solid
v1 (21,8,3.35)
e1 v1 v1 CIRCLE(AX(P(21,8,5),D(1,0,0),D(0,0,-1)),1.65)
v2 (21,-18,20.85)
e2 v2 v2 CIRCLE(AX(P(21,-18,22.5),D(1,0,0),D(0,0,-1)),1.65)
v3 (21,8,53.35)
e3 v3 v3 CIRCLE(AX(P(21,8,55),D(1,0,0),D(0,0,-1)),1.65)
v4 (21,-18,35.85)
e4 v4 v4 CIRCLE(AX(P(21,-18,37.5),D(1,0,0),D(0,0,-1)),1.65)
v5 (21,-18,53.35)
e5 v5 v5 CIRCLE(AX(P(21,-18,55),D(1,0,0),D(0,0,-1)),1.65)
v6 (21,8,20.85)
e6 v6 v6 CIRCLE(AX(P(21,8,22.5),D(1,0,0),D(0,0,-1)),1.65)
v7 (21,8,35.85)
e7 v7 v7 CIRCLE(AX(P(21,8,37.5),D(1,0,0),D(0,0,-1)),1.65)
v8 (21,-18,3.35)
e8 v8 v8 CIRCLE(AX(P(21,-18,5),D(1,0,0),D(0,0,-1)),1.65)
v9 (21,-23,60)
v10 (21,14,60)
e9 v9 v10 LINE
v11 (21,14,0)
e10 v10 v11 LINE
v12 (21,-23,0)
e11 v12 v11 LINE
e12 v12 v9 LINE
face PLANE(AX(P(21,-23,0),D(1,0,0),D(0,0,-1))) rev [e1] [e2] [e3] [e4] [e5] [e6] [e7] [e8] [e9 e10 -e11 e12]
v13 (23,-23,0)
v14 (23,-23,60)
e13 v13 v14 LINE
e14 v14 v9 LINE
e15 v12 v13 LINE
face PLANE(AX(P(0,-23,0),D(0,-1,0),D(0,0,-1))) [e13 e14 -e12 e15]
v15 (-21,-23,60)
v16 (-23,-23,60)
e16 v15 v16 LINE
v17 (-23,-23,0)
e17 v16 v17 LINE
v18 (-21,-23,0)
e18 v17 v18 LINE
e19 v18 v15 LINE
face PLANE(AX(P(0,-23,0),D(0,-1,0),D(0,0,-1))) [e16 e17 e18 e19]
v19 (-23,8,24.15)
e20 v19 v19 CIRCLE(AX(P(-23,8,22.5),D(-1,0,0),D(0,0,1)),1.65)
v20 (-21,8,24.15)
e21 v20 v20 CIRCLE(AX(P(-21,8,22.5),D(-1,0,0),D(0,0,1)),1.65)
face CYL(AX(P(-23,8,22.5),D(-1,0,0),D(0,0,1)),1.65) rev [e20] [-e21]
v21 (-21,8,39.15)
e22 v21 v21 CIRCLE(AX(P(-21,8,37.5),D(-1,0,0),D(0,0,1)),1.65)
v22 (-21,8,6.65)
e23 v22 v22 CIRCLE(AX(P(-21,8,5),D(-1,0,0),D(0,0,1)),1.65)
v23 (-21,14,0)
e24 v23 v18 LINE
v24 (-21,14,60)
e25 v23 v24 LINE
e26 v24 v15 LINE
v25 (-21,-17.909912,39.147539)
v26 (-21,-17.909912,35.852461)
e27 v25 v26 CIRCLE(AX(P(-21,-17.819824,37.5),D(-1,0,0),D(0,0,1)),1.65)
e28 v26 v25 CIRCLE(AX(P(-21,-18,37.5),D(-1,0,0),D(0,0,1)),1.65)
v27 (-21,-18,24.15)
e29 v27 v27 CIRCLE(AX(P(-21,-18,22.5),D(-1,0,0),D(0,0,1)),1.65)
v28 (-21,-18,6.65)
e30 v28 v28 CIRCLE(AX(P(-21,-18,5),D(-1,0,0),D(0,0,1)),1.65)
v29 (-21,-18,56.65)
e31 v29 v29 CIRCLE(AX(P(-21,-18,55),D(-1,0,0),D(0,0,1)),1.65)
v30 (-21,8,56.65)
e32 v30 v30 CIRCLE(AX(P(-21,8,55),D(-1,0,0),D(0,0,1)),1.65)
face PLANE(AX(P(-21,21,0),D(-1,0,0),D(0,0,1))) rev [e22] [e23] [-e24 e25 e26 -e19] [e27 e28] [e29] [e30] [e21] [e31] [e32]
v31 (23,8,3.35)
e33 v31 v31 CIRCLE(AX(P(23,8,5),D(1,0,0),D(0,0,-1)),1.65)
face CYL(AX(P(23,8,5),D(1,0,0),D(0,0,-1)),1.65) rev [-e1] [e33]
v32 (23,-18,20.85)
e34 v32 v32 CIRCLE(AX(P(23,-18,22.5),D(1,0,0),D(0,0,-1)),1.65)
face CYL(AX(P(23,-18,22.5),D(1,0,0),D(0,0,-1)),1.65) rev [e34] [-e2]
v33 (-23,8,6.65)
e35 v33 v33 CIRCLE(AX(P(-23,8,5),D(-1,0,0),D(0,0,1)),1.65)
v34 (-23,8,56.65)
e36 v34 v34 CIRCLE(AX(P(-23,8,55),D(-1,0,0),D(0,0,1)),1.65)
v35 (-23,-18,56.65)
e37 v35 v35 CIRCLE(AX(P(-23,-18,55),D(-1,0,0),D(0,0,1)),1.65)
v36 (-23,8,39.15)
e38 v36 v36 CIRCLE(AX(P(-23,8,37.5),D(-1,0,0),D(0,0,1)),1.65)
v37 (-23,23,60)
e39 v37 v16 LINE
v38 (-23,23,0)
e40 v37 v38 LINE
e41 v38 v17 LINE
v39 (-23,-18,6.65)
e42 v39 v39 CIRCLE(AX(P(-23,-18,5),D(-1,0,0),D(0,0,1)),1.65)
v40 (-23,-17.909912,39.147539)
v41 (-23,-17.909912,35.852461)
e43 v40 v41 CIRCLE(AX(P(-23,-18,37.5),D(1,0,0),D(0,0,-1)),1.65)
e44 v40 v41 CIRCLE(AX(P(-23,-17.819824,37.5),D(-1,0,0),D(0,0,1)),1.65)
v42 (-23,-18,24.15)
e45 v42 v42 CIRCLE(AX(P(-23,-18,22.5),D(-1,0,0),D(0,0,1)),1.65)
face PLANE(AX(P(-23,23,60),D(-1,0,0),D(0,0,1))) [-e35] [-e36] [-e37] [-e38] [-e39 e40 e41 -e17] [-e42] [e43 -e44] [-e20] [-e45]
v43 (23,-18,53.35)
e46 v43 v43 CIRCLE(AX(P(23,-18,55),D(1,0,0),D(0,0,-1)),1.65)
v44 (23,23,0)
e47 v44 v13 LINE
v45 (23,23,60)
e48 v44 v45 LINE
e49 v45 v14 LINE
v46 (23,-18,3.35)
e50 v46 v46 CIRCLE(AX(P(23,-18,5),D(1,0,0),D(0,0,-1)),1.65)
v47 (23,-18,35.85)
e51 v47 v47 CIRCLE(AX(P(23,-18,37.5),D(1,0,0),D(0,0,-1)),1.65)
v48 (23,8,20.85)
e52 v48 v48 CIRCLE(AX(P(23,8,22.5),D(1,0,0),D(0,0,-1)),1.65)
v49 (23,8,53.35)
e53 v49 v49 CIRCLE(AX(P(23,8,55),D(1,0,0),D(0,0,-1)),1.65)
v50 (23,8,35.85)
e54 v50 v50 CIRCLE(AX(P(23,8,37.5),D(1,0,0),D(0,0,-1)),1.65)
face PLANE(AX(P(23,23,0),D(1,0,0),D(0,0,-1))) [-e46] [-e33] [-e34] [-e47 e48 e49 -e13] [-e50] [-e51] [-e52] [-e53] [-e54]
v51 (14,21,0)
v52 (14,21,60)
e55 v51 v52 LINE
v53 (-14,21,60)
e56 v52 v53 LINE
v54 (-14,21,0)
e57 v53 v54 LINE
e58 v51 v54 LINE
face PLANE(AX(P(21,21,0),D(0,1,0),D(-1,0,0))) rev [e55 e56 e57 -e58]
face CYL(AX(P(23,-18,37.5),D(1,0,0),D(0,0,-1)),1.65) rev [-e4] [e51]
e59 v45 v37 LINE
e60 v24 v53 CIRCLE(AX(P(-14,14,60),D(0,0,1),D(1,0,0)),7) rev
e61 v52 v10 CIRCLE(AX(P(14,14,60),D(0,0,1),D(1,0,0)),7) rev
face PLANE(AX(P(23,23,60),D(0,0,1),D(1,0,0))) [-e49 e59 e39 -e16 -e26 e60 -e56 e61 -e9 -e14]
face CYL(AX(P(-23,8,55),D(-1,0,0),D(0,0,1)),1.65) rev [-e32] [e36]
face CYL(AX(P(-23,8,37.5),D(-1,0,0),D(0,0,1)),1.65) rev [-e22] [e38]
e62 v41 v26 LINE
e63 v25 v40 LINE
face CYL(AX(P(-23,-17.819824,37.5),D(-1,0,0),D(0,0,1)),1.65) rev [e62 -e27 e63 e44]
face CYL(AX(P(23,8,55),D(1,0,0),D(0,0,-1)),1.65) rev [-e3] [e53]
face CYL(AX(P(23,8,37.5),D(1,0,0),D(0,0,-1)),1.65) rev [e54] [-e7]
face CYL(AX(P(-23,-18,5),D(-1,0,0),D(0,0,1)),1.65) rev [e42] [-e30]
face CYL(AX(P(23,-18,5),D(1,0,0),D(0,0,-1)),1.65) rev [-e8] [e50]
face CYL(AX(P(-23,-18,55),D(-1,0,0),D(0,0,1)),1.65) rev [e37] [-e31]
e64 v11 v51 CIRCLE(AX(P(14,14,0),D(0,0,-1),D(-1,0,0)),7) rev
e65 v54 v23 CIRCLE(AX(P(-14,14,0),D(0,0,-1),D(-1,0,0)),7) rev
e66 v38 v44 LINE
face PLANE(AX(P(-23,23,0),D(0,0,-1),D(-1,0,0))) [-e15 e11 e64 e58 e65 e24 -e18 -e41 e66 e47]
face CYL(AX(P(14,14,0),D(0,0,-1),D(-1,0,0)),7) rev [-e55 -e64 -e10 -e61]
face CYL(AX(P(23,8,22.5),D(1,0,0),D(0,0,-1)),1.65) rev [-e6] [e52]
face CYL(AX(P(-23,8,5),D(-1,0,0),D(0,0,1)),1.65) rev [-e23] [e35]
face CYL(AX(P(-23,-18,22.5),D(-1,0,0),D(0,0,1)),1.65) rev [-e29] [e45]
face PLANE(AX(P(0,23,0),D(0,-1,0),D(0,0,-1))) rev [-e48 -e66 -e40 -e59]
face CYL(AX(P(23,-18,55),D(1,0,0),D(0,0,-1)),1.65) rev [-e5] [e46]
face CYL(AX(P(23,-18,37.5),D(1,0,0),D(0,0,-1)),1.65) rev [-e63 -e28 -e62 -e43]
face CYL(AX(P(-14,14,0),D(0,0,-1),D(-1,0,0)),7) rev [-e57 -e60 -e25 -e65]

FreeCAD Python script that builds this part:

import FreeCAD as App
import Part
import Sketcher
Q = App.Units.Quantity


def edges_at(feature, points):
    """Names of the edges that pass closest to the given points."""
    edges = feature.Shape.Edges
    near = lambda p: min(range(len(edges)), key=lambda i: edges[i].distToShape(Part.Vertex(*p))[0])
    return sorted({f"Edge{near(p) + 1}" for p in points})

doc = App.newDocument("Part")
body = doc.addObject("PartDesign::Body", "Body")

sketch1 = body.newObject("Sketcher::SketchObject", "Sketch")
sketch1.AttachmentSupport = (doc.getObject("XZ_Plane"), [""])
sketch1.MapMode = "FlatFace"
sketch1.AttachmentOffset = App.Placement(App.Vector(0, 0, 23), App.Rotation())
sketch1.addGeometry(Part.LineSegment(App.Vector(-23, 60, 0), App.Vector(-23, 0, 0)), False)
sketch1.addGeometry(Part.LineSegment(App.Vector(-23, 0, 0), App.Vector(23, 0, 0)), False)
sketch1.addGeometry(Part.LineSegment(App.Vector(23, 0, 0), App.Vector(23, 60, 0)), False)
sketch1.addGeometry(Part.LineSegment(App.Vector(23, 60, 0), App.Vector(-23, 60, 0)), False)
sketch1.addConstraint(Sketcher.Constraint("Coincident", 0, 2, 1, 1))
sketch1.addConstraint(Sketcher.Constraint("Coincident", 1, 2, 2, 1))
sketch1.addConstraint(Sketcher.Constraint("Coincident", 2, 2, 3, 1))
sketch1.addConstraint(Sketcher.Constraint("Coincident", 3, 2, 0, 1))
sketch1.addConstraint(Sketcher.Constraint("Vertical", 0))
sketch1.addConstraint(Sketcher.Constraint("Horizontal", 1))
sketch1.addConstraint(Sketcher.Constraint("Vertical", 2))
sketch1.addConstraint(Sketcher.Constraint("Horizontal", 3))
sketch1.addConstraint(Sketcher.Constraint("Symmetric", 0, 2, 1, 2, -1, 1))
sketch1.addConstraint(Sketcher.Constraint("DistanceX", 1, 1, 1, 2, Q("46 mm")))
sketch1.addConstraint(Sketcher.Constraint("DistanceY", 0, 2, 0, 1, Q("60 mm")))
pad1 = body.newObject("PartDesign::Pad", "Pad")
pad1.Profile = sketch1
pad1.Length = 46
pad1.Reversed = True

sketch2 = body.newObject("Sketcher::SketchObject", "Sketch001")
sketch2.AttachmentSupport = (doc.getObject("XY_Plane"), [""])
sketch2.MapMode = "FlatFace"
sketch2.AttachmentOffset = App.Placement(App.Vector(0, 0, 60), App.Rotation())
sketch2.addGeometry(Part.LineSegment(App.Vector(-21, 21, 0), App.Vector(-21, -23, 0)), False)
sketch2.addGeometry(Part.LineSegment(App.Vector(-21, -23, 0), App.Vector(21, -23, 0)), False)
sketch2.addGeometry(Part.LineSegment(App.Vector(21, -23, 0), App.Vector(21, 21, 0)), False)
sketch2.addGeometry(Part.LineSegment(App.Vector(21, 21, 0), App.Vector(-21, 21, 0)), False)
sketch2.addConstraint(Sketcher.Constraint("Coincident", 0, 2, 1, 1))
sketch2.addConstraint(Sketcher.Constraint("Coincident", 1, 2, 2, 1))
sketch2.addConstraint(Sketcher.Constraint("Coincident", 2, 2, 3, 1))
sketch2.addConstraint(Sketcher.Constraint("Coincident", 3, 2, 0, 1))
sketch2.addConstraint(Sketcher.Constraint("Vertical", 0))
sketch2.addConstraint(Sketcher.Constraint("Horizontal", 1))
sketch2.addConstraint(Sketcher.Constraint("Vertical", 2))
sketch2.addConstraint(Sketcher.Constraint("Horizontal", 3))
sketch2.addConstraint(Sketcher.Constraint("DistanceX", 1, 1, 1, 2, Q("42 mm")))
sketch2.addConstraint(Sketcher.Constraint("DistanceY", 0, 2, 0, 1, Q("44 mm")))
sketch2.addConstraint(Sketcher.Constraint("DistanceX", 0, 2, -1, 1, Q("21 mm")))
sketch2.addConstraint(Sketcher.Constraint("DistanceY", 0, 2, -1, 1, Q("23 mm")))
pocket1 = body.newObject("PartDesign::Pocket", "Pocket")
pocket1.Profile = sketch2
pocket1.Type = "ThroughAll"

sketch3 = body.newObject("Sketcher::SketchObject", "Sketch002")
sketch3.AttachmentSupport = (doc.getObject("YZ_Plane"), [""])
sketch3.MapMode = "FlatFace"
sketch3.AttachmentOffset = App.Placement(App.Vector(0, 0, -23), App.Rotation())
sketch3.addGeometry(Part.Circle(App.Vector(-18, 55, 0), App.Vector(0, 0, 1), 1.65), False)
sketch3.addGeometry(Part.Circle(App.Vector(-18, 22.5, 0), App.Vector(0, 0, 1), 1.65), False)
sketch3.addGeometry(Part.Circle(App.Vector(8, 22.5, 0), App.Vector(0, 0, 1), 1.65), False)
sketch3.addGeometry(Part.Circle(App.Vector(8, 55, 0), App.Vector(0, 0, 1), 1.65), False)
sketch3.addGeometry(Part.Circle(App.Vector(8, 5, 0), App.Vector(0, 0, 1), 1.65), False)
sketch3.addGeometry(Part.Circle(App.Vector(8, 37.5, 0), App.Vector(0, 0, 1), 1.65), False)
sketch3.addGeometry(Part.Circle(App.Vector(-17.819824, 37.5, 0), App.Vector(0, 0, 1), 1.65), False)
sketch3.addGeometry(Part.Circle(App.Vector(-18, 5, 0), App.Vector(0, 0, 1), 1.65), False)
sketch3.addConstraint(Sketcher.Constraint("Equal", 0, 1))
sketch3.addConstraint(Sketcher.Constraint("Equal", 1, 2))
sketch3.addConstraint(Sketcher.Constraint("Equal", 2, 3))
sketch3.addConstraint(Sketcher.Constraint("Equal", 3, 4))
sketch3.addConstraint(Sketcher.Constraint("Equal", 4, 5))
sketch3.addConstraint(Sketcher.Constraint("Equal", 5, 6))
sketch3.addConstraint(Sketcher.Constraint("Equal", 6, 7))
sketch3.addConstraint(Sketcher.Constraint("Horizontal", 1, 3, 2, 3))
sketch3.addConstraint(Sketcher.Constraint("Horizontal", 0, 3, 3, 3))
sketch3.addConstraint(Sketcher.Constraint("Horizontal", 5, 3, 6, 3))
sketch3.addConstraint(Sketcher.Constraint("Horizontal", 4, 3, 7, 3))
sketch3.addConstraint(Sketcher.Constraint("Vertical", 0, 3, 1, 3))
sketch3.addConstraint(Sketcher.Constraint("Vertical", 2, 3, 3, 3))
sketch3.addConstraint(Sketcher.Constraint("Vertical", 3, 3, 4, 3))
sketch3.addConstraint(Sketcher.Constraint("Vertical", 4, 3, 5, 3))
sketch3.addConstraint(Sketcher.Constraint("Vertical", 1, 3, 7, 3))
sketch3.addConstraint(Sketcher.Constraint("Diameter", 0, Q("3.3 mm")))
sketch3.addConstraint(Sketcher.Constraint("DistanceX", 0, 3, -1, 1, Q("18 mm")))
sketch3.addConstraint(Sketcher.Constraint("DistanceY", -1, 1, 0, 3, Q("55 mm")))
sketch3.addConstraint(Sketcher.Constraint("DistanceX", -1, 1, 2, 3, Q("8 mm")))
sketch3.addConstraint(Sketcher.Constraint("DistanceY", -1, 1, 4, 3, Q("5 mm")))
sketch3.addConstraint(Sketcher.Constraint("DistanceY", 2, 3, 5, 3, Q("15 mm")))
sketch3.addConstraint(Sketcher.Constraint("DistanceY", -1, 1, 1, 3, Q("22.5 mm")))
sketch3.addConstraint(Sketcher.Constraint("DistanceX", 6, 3, -1, 1, Q("17.819824 mm")))
doc.recompute()
hole = body.newObject("PartDesign::Hole", "Hole")
hole.Profile = sketch3
hole.ThreadType = "None"
hole.Diameter = 3.3
hole.DepthType = "Dimension"
hole.Depth = 2
hole.DrillPoint = "Flat"
hole.Reversed = True

sketch4 = body.newObject("Sketcher::SketchObject", "Sketch003")
sketch4.AttachmentSupport = (doc.getObject("YZ_Plane"), [""])
sketch4.MapMode = "FlatFace"
sketch4.AttachmentOffset = App.Placement(App.Vector(0, 0, 23), App.Rotation())
sketch4.addGeometry(Part.Circle(App.Vector(8, 55, 0), App.Vector(0, 0, 1), 1.65), False)
sketch4.addGeometry(Part.Circle(App.Vector(8, 22.5, 0), App.Vector(0, 0, 1), 1.65), False)
sketch4.addGeometry(Part.Circle(App.Vector(-18, 22.5, 0), App.Vector(0, 0, 1), 1.65), False)
sketch4.addGeometry(Part.Circle(App.Vector(-18, 55, 0), App.Vector(0, 0, 1), 1.65), False)
sketch4.addGeometry(Part.Circle(App.Vector(-18, 5, 0), App.Vector(0, 0, 1), 1.65), False)
sketch4.addGeometry(Part.Circle(App.Vector(8, 5, 0), App.Vector(0, 0, 1), 1.65), False)
sketch4.addGeometry(Part.Circle(App.Vector(8, 37.5, 0), App.Vector(0, 0, 1), 1.65), False)
sketch4.addGeometry(Part.Circle(App.Vector(-18, 37.5, 0), App.Vector(0, 0, 1), 1.65), False)
sketch4.addConstraint(Sketcher.Constraint("Equal", 0, 1))
sketch4.addConstraint(Sketcher.Constraint("Equal", 1, 2))
sketch4.addConstraint(Sketcher.Constraint("Equal", 2, 3))
sketch4.addConstraint(Sketcher.Constraint("Equal", 3, 4))
sketch4.addConstraint(Sketcher.Constraint("Equal", 4, 5))
sketch4.addConstraint(Sketcher.Constraint("Equal", 5, 6))
sketch4.addConstraint(Sketcher.Constraint("Equal", 6, 7))
sketch4.addConstraint(Sketcher.Constraint("Horizontal", 1, 3, 2, 3))
sketch4.addConstraint(Sketcher.Constraint("Horizontal", 0, 3, 3, 3))
sketch4.addConstraint(Sketcher.Constraint("Horizontal", 4, 3, 5, 3))
sketch4.addConstraint(Sketcher.Constraint("Horizontal", 6, 3, 7, 3))
sketch4.addConstraint(Sketcher.Constraint("Vertical", 0, 3, 1, 3))
sketch4.addConstraint(Sketcher.Constraint("Vertical", 2, 3, 3, 3))
sketch4.addConstraint(Sketcher.Constraint("Vertical", 3, 3, 4, 3))
sketch4.addConstraint(Sketcher.Constraint("Vertical", 1, 3, 5, 3))
sketch4.addConstraint(Sketcher.Constraint("Vertical", 5, 3, 6, 3))
sketch4.addConstraint(Sketcher.Constraint("Vertical", 4, 3, 7, 3))
sketch4.addConstraint(Sketcher.Constraint("Diameter", 0, Q("3.3 mm")))
sketch4.addConstraint(Sketcher.Constraint("DistanceX", -1, 1, 0, 3, Q("8 mm")))
sketch4.addConstraint(Sketcher.Constraint("DistanceY", -1, 1, 0, 3, Q("55 mm")))
sketch4.addConstraint(Sketcher.Constraint("DistanceX", 2, 3, -1, 1, Q("18 mm")))
sketch4.addConstraint(Sketcher.Constraint("DistanceY", -1, 1, 4, 3, Q("5 mm")))
sketch4.addConstraint(Sketcher.Constraint("DistanceY", 1, 3, 6, 3, Q("15 mm")))
sketch4.addConstraint(Sketcher.Constraint("DistanceY", -1, 1, 1, 3, Q("22.5 mm")))
doc.recompute()
hole2 = body.newObject("PartDesign::Hole", "Hole001")
hole2.Profile = sketch4
hole2.ThreadType = "None"
hole2.Diameter = 3.3
hole2.DepthType = "Dimension"
hole2.Depth = 46
hole2.DrillPoint = "Flat"
doc.recompute()

fillet = body.newObject("PartDesign::Fillet", "Fillet")
fillet.Base = (hole2, edges_at(hole2, [(-21, 21, 30), (21, 21, 30)]))
fillet.Radius = 7

doc.recompute()
